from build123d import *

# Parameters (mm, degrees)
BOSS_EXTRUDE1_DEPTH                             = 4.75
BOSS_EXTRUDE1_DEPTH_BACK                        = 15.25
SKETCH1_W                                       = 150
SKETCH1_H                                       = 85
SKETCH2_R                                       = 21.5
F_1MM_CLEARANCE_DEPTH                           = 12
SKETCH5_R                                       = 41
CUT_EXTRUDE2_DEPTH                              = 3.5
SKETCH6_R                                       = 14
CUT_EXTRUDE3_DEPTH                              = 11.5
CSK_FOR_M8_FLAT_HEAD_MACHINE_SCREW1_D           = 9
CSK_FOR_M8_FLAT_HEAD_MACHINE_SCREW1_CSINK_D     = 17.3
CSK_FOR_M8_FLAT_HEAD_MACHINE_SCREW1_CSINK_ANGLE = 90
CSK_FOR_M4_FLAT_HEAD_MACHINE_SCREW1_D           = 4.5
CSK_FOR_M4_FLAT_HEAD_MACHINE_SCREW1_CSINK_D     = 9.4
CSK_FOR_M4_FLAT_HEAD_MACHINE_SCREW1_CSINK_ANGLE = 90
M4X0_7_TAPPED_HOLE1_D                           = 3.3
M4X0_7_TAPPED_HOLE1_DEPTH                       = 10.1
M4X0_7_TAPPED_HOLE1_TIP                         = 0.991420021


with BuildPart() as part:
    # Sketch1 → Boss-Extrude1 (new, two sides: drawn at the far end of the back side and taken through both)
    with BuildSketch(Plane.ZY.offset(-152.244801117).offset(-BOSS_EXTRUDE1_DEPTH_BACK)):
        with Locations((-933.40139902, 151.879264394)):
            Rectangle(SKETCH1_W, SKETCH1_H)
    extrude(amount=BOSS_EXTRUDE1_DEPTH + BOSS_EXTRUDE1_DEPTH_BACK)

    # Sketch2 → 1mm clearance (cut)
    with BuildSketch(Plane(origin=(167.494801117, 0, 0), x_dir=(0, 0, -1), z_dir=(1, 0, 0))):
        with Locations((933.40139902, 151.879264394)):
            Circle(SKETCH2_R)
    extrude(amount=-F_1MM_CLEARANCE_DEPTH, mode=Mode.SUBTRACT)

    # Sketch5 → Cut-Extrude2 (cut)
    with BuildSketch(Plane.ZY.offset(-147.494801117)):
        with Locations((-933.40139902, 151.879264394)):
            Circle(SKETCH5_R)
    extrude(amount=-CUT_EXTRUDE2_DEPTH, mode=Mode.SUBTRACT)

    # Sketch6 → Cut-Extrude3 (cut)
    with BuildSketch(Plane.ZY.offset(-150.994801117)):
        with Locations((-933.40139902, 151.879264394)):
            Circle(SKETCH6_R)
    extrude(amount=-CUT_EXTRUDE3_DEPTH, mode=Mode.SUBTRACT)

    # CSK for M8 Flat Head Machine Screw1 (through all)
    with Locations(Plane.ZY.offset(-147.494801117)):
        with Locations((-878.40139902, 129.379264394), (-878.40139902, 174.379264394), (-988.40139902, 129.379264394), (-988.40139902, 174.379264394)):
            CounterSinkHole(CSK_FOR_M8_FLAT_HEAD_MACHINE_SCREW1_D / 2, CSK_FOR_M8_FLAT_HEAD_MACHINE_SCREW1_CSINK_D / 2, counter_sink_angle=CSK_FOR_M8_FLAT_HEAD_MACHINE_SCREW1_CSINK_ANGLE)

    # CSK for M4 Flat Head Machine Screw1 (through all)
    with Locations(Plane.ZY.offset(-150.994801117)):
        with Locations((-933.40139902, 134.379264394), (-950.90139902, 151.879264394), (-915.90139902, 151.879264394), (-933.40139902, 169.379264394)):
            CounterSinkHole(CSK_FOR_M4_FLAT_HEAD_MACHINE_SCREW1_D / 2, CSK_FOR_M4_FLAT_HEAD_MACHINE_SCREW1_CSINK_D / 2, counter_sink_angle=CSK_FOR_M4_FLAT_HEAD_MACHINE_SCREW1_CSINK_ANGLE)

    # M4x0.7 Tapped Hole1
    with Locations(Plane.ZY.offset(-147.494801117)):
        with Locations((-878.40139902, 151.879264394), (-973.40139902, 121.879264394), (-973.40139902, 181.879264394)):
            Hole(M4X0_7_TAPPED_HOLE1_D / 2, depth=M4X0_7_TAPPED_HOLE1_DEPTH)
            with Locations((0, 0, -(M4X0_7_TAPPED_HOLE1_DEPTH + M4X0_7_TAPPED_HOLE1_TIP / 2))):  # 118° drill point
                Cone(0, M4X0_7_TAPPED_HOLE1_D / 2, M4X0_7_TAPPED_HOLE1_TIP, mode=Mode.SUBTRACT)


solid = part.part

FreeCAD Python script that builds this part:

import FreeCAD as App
import Part
import Sketcher
from FreeCAD import Vector

doc = App.newDocument("Part")
body = doc.addObject("PartDesign::Body", "Body")

# Sketch on YZ plane
sketch1 = body.newObject("Sketcher::SketchObject", "Sketch")
sketch1.AttachmentSupport = (doc.getObject("YZ_Plane"), [""])
sketch1.MapMode = "FlatFace"
sketch1.AttachmentOffset = App.Placement(Vector(0, 0, 152.244801), App.Rotation())
sketch1.addGeometry(Part.LineSegment(Vector(194, -1008, 0), Vector(109, -1008, 0)), False)
sketch1.addGeometry(Part.LineSegment(Vector(109, -1008, 0), Vector(109, -858, 0)), False)
sketch1.addGeometry(Part.LineSegment(Vector(109, -858, 0), Vector(194, -858, 0)), False)
sketch1.addGeometry(Part.LineSegment(Vector(194, -858, 0), Vector(194, -1008, 0)), False)
sketch1.addConstraint(Sketcher.Constraint("Coincident", 0, 2, 1, 1))
sketch1.addConstraint(Sketcher.Constraint("Coincident", 1, 2, 2, 1))
sketch1.addConstraint(Sketcher.Constraint("Coincident", 2, 2, 3, 1))
sketch1.addConstraint(Sketcher.Constraint("Coincident", 3, 2, 0, 1))
sketch1.addConstraint(Sketcher.Constraint("Horizontal", 0))
sketch1.addConstraint(Sketcher.Constraint("Vertical", 1))
sketch1.addConstraint(Sketcher.Constraint("Horizontal", 2))
sketch1.addConstraint(Sketcher.Constraint("Vertical", 3))
sketch1.addConstraint(Sketcher.Constraint("DistanceX", 0, 2, 0, 1, 85.0))
sketch1.addConstraint(Sketcher.Constraint("DistanceY", 1, 1, 1, 2, 150.0))
sketch1.addConstraint(Sketcher.Constraint("DistanceY", 0, 2, -1, 1, 1008.401399))
sketch1.addConstraint(Sketcher.Constraint("DistanceX", -1, 1, 0, 2, 109.379264))
pad1 = body.newObject("PartDesign::Pad", "Pad")
pad1.Profile = sketch1
pad1.Type = "TwoLengths"
pad1.Length = 4.75
pad1.Length2 = 15.25
pad1.Reversed = True

# Sketch on YZ plane
sketch2 = body.newObject("Sketcher::SketchObject", "Sketch001")
sketch2.AttachmentSupport = (doc.getObject("YZ_Plane"), [""])
sketch2.MapMode = "FlatFace"
sketch2.AttachmentOffset = App.Placement(Vector(0, 0, 167.494801), App.Rotation())
sketch2.addGeometry(Part.Circle(Vector(152, -933, 0), Vector(0, 0, 1), 22), False)
sketch2.addConstraint(Sketcher.Constraint("Diameter", 0, 43.0))
sketch2.addConstraint(Sketcher.Constraint("DistanceY", 0, 3, -1, 1, 933.401399))
sketch2.addConstraint(Sketcher.Constraint("DistanceX", -1, 1, 0, 3, 151.879264))
pocket1 = body.newObject("PartDesign::Pocket", "Pocket")
pocket1.Profile = sketch2
pocket1.Length = 12

# Sketch on YZ plane
sketch3 = body.newObject("Sketcher::SketchObject", "Sketch002")
sketch3.AttachmentSupport = (doc.getObject("YZ_Plane"), [""])
sketch3.MapMode = "FlatFace"
sketch3.AttachmentOffset = App.Placement(Vector(0, 0, 147.494801), App.Rotation())
sketch3.addGeometry(Part.Circle(Vector(152, -933, 0), Vector(0, 0, 1), 41), False)
sketch3.addConstraint(Sketcher.Constraint("Diameter", 0, 82.0))
sketch3.addConstraint(Sketcher.Constraint("DistanceY", 0, 3, -1, 1, 933.401399))
sketch3.addConstraint(Sketcher.Constraint("DistanceX", -1, 1, 0, 3, 151.879264))
pocket2 = body.newObject("PartDesign::Pocket", "Pocket001")
pocket2.Profile = sketch3
pocket2.Length = 3.5
pocket2.Reversed = True

# Sketch on YZ plane
sketch4 = body.newObject("Sketcher::SketchObject", "Sketch003")
sketch4.AttachmentSupport = (doc.getObject("YZ_Plane"), [""])
sketch4.MapMode = "FlatFace"
sketch4.AttachmentOffset = App.Placement(Vector(0, 0, 150.994801), App.Rotation())
sketch4.addGeometry(Part.Circle(Vector(152, -933, 0), Vector(0, 0, 1), 14), False)
sketch4.addConstraint(Sketcher.Constraint("Diameter", 0, 28.0))
sketch4.addConstraint(Sketcher.Constraint("DistanceY", 0, 3, -1, 1, 933.401399))
sketch4.addConstraint(Sketcher.Constraint("DistanceX", -1, 1, 0, 3, 151.879264))
pocket3 = body.newObject("PartDesign::Pocket", "Pocket002")
pocket3.Profile = sketch4
pocket3.Length = 11.5
pocket3.Reversed = True

# Sketch on YZ plane
sketch5 = body.newObject("Sketcher::SketchObject", "Sketch004")
sketch5.AttachmentSupport = (doc.getObject("YZ_Plane"), [""])
sketch5.MapMode = "FlatFace"
sketch5.AttachmentOffset = App.Placement(Vector(0, 0, 147.494801), App.Rotation())
sketch5.addGeometry(Part.Circle(Vector(129.4, -878.4, 0), Vector(0, 0, 1), 4.5), False)
sketch5.addGeometry(Part.Circle(Vector(174.4, -878.4, 0), Vector(0, 0, 1), 4.5), False)
sketch5.addGeometry(Part.Circle(Vector(129.4, -988.4, 0), Vector(0, 0, 1), 4.5), False)
sketch5.addGeometry(Part.Circle(Vector(174.4, -988.4, 0), Vector(0, 0, 1), 4.5), False)
sketch5.addConstraint(Sketcher.Constraint("Equal", 0, 1))
sketch5.addConstraint(Sketcher.Constraint("Equal", 1, 2))
sketch5.addConstraint(Sketcher.Constraint("Equal", 2, 3))
sketch5.addConstraint(Sketcher.Constraint("Horizontal", 0, 3, 1, 3))
sketch5.addConstraint(Sketcher.Constraint("Horizontal", 2, 3, 3, 3))
sketch5.addConstraint(Sketcher.Constraint("Vertical", 0, 3, 2, 3))
sketch5.addConstraint(Sketcher.Constraint("Vertical", 1, 3, 3, 3))
sketch5.addConstraint(Sketcher.Constraint("Diameter", 0, 9.0))
sketch5.addConstraint(Sketcher.Constraint("DistanceX", 0, 3, 1, 3, 45.0))
sketch5.addConstraint(Sketcher.Constraint("DistanceY", 2, 3, 0, 3, 110.0))
sketch5.addConstraint(Sketcher.Constraint("DistanceY", 0, 3, -1, 1, 878.401399))
sketch5.addConstraint(Sketcher.Constraint("DistanceX", -1, 1, 0, 3, 129.379264))
doc.recompute()
hole = body.newObject("PartDesign::Hole", "Hole")
hole.Profile = sketch5
hole.ThreadType = "None"
hole.Diameter = 9
hole.DepthType = "ThroughAll"
hole.HoleCutType = "Countersink"
hole.HoleCutDiameter = 17.3
hole.HoleCutCountersinkAngle = 90
hole.Reversed = True

# Sketch on YZ plane
sketch6 = body.newObject("Sketcher::SketchObject", "Sketch005")
sketch6.AttachmentSupport = (doc.getObject("YZ_Plane"), [""])
sketch6.MapMode = "FlatFace"
sketch6.AttachmentOffset = App.Placement(Vector(0, 0, 150.994801), App.Rotation())
sketch6.addGeometry(Part.Circle(Vector(134.4, -933.4, 0), Vector(0, 0, 1), 2.2), False)
sketch6.addGeometry(Part.Circle(Vector(151.9, -950.9, 0), Vector(0, 0, 1), 2.2), False)
sketch6.addGeometry(Part.Circle(Vector(151.9, -915.9, 0), Vector(0, 0, 1), 2.2), False)
sketch6.addGeometry(Part.Circle(Vector(169.4, -933.4, 0), Vector(0, 0, 1), 2.2), False)
sketch6.addConstraint(Sketcher.Constraint("Equal", 0, 1))
sketch6.addConstraint(Sketcher.Constraint("Equal", 1, 2))
sketch6.addConstraint(Sketcher.Constraint("Equal", 2, 3))
sketch6.addConstraint(Sketcher.Constraint("Horizontal", 0, 3, 3, 3))
sketch6.addConstraint(Sketcher.Constraint("Vertical", 1, 3, 2, 3))
sketch6.addConstraint(Sketcher.Constraint("Diameter", 0, 4.5))
sketch6.addConstraint(Sketcher.Constraint("DistanceY", 1, 3, 2, 3, 35.0))
sketch6.addConstraint(Sketcher.Constraint("DistanceX", 0, 3, 3, 3, 35.0))
sketch6.addConstraint(Sketcher.Constraint("DistanceX", 0, 3, 1, 3, 17.5))
sketch6.addConstraint(Sketcher.Constraint("DistanceY", 1, 3, 0, 3, 17.5))
sketch6.addConstraint(Sketcher.Constraint("DistanceY", 0, 3, -1, 1, 933.401399))
sketch6.addConstraint(Sketcher.Constraint("DistanceX", -1, 1, 0, 3, 134.379264))
doc.recompute()
hole2 = body.newObject("PartDesign::Hole", "Hole001")
hole2.Profile = sketch6
hole2.ThreadType = "None"
hole2.Diameter = 4.5
hole2.DepthType = "ThroughAll"
hole2.HoleCutType = "Countersink"
hole2.HoleCutDiameter = 9.4
hole2.HoleCutCountersinkAngle = 90
hole2.Reversed = True

# Sketch on YZ plane
sketch7 = body.newObject("Sketcher::SketchObject", "Sketch006")
sketch7.AttachmentSupport = (doc.getObject("YZ_Plane"), [""])
sketch7.MapMode = "FlatFace"
sketch7.AttachmentOffset = App.Placement(Vector(0, 0, 147.494801), App.Rotation())
sketch7.addGeometry(Part.Circle(Vector(151.9, -878.4, 0), Vector(0, 0, 1), 1.6), False)
sketch7.addGeometry(Part.Circle(Vector(121.9, -973.4, 0), Vector(0, 0, 1), 1.6), False)
sketch7.addGeometry(Part.Circle(Vector(181.9, -973.4, 0), Vector(0, 0, 1), 1.6), False)
sketch7.addConstraint(Sketcher.Constraint("Equal", 0, 1))
sketch7.addConstraint(Sketcher.Constraint("Equal", 1, 2))
sketch7.addConstraint(Sketcher.Constraint("Horizontal", 1, 3, 2, 3))
sketch7.addConstraint(Sketcher.Constraint("Diameter", 0, 3.3))
sketch7.addConstraint(Sketcher.Constraint("DistanceX", 1, 3, 0, 3, 30.0))
sketch7.addConstraint(Sketcher.Constraint("DistanceY", 1, 3, 0, 3, 95.0))
sketch7.addConstraint(Sketcher.Constraint("DistanceX", 1, 3, 2, 3, 60.0))
sketch7.addConstraint(Sketcher.Constraint("DistanceY", 0, 3, -1, 1, 878.401399))
sketch7.addConstraint(Sketcher.Constraint("DistanceX", -1, 1, 0, 3, 151.879264))
doc.recompute()
hole3 = body.newObject("PartDesign::Hole", "Hole002")
hole3.Profile = sketch7
hole3.ThreadType = "None"
hole3.Diameter = 3.3
hole3.DepthType = "Dimension"
hole3.Depth = 10.1
hole3.DrillPoint = "Angled"
hole3.DrillPointAngle = 118
hole3.Reversed = True

doc.recompute()
